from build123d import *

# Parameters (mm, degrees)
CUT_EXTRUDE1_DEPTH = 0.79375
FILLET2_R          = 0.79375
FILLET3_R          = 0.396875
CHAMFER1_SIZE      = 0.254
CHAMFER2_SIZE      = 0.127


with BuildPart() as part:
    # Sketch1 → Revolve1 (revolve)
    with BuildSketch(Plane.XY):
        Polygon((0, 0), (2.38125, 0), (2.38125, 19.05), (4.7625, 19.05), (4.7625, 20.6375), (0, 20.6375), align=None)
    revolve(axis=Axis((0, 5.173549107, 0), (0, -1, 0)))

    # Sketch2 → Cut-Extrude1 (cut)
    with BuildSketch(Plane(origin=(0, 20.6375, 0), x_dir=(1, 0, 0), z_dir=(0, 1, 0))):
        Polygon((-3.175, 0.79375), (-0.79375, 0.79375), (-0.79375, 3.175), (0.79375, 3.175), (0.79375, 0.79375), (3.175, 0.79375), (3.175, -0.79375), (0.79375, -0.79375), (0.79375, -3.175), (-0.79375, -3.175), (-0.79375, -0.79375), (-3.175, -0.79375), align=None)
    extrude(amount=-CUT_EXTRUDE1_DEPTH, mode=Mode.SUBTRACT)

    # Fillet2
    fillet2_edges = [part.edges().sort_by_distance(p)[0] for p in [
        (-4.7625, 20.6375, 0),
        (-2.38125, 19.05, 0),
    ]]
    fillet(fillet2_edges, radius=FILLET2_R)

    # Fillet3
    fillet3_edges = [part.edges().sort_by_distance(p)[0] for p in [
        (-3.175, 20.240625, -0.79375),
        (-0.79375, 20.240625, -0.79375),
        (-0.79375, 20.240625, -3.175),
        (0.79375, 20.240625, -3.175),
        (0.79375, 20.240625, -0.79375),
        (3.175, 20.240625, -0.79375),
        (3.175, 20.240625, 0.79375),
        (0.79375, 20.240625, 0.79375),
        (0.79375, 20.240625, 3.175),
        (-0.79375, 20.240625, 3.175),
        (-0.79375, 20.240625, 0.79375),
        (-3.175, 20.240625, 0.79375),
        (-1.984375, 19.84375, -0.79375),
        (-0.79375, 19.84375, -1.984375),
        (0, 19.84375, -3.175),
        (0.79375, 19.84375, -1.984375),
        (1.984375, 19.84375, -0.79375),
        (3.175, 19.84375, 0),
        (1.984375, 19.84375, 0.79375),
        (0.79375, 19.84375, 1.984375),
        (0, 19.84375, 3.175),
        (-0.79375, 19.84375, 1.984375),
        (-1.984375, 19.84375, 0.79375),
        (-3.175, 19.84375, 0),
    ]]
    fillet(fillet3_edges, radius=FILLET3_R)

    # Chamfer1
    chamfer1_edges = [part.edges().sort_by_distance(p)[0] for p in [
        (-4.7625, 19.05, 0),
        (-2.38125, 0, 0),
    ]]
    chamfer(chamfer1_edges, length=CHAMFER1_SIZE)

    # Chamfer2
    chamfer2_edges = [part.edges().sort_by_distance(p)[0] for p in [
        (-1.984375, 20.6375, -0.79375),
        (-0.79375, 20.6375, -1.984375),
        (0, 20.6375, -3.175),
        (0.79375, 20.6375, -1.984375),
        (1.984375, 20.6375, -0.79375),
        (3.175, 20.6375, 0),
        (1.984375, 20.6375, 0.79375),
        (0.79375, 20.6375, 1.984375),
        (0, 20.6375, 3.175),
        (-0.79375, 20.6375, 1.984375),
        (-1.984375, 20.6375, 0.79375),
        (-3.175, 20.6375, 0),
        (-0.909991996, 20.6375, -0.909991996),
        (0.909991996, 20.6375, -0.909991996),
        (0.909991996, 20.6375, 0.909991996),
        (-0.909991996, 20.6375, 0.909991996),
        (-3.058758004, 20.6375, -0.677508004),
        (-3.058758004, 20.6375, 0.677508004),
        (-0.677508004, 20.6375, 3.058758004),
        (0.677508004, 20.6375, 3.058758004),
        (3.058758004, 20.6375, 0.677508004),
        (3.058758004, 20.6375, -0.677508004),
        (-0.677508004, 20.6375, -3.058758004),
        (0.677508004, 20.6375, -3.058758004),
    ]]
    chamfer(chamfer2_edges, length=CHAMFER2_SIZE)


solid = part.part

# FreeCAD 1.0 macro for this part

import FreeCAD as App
import Part
import Sketcher
from FreeCAD import Vector
Q = App.Units.Quantity


def edges_at(feature, points):
    """Names of the edges that pass closest to the given points."""
    edges = feature.Shape.Edges
    near = lambda p: min(range(len(edges)), key=lambda i: edges[i].distToShape(Part.Vertex(*p))[0])
    return sorted({f"Edge{near(p) + 1}" for p in points})


def add_polygon(sketch, points):
    """Adds a closed chain of lines whose ends are joined by coincident constraints."""
    first, n = sketch.GeometryCount, len(points)
    for a, b in zip(points, points[1:] + points[:1]):
        sketch.addGeometry(Part.LineSegment(App.Vector(*a, 0), App.Vector(*b, 0)), False)
    for i in range(n):
        sketch.addConstraint(Sketcher.Constraint("Coincident", first + i, 2, first + (i + 1) % n, 1))

doc = App.newDocument("Part")
body = doc.addObject("PartDesign::Body", "Body")

# Sketch on XY plane
sketch1 = doc.addObject("Sketcher::SketchObject", "Sketch")
body.addObject(sketch1)
sketch1.AttachmentSupport = (doc.XY_Plane, [""])
sketch1.MapMode = "FlatFace"
add_polygon(sketch1, [(0, 0), (2.38125, 0), (2.38125, 19.05), (4.7625, 19.05), (4.7625, 20.6375), (0, 20.6375)])  # lines 0-5
sketch1.addConstraint(Sketcher.Constraint("Horizontal", 0))
sketch1.addConstraint(Sketcher.Constraint("Vertical", 1))
sketch1.addConstraint(Sketcher.Constraint("Horizontal", 2))
sketch1.addConstraint(Sketcher.Constraint("Vertical", 3))
sketch1.addConstraint(Sketcher.Constraint("Horizontal", 4))
sketch1.addConstraint(Sketcher.Constraint("Vertical", 5))
sketch1.addConstraint(Sketcher.Constraint("Coincident", 5, 2, -1, 1))
sketch1.addConstraint(Sketcher.Constraint("Equal", 0, 2))
sketch1.addConstraint(Sketcher.Constraint("DistanceY", 1, 1, 1, 2, Q("0.75 in")))
sketch1.addConstraint(Sketcher.Constraint("DistanceX", 0, 1, 0, 2, Q("0.09375 in")))
sketch1.addConstraint(Sketcher.Constraint("DistanceY", 3, 1, 3, 2, Q("0.0625 in")))
revolution = doc.addObject("PartDesign::Revolution", "Revolution")
body.addObject(revolution)
revolution.Profile = sketch1
revolution.ReferenceAxis = (sketch1, ["V_Axis"])
revolution.Angle = 360

# Sketch on XZ plane
sketch2 = doc.addObject("Sketcher::SketchObject", "Sketch001")
body.addObject(sketch2)
sketch2.AttachmentSupport = (doc.XZ_Plane, [""])
sketch2.MapMode = "FlatFace"
sketch2.AttachmentOffset = App.Placement(Vector(0, 0, -0.8125 * 25.4), App.Rotation())
add_polygon(sketch2, [(-0.79375, -0.79375), (-3.175, -0.79375), (-3.175, 0.79375), (-0.79375, 0.79375), (-0.79375, 3.175), (0.79375, 3.175), (0.79375, 0.79375), (3.175, 0.79375), (3.175, -0.79375), (0.79375, -0.79375), (0.79375, -3.175), (-0.79375, -3.175)])  # lines 0-11
sketch2.addConstraint(Sketcher.Constraint("Horizontal", 0))
sketch2.addConstraint(Sketcher.Constraint("Vertical", 1))
sketch2.addConstraint(Sketcher.Constraint("Horizontal", 2))
sketch2.addConstraint(Sketcher.Constraint("Vertical", 3))
sketch2.addConstraint(Sketcher.Constraint("Horizontal", 4))
sketch2.addConstraint(Sketcher.Constraint("Vertical", 5))
sketch2.addConstraint(Sketcher.Constraint("Horizontal", 6))
sketch2.addConstraint(Sketcher.Constraint("Vertical", 7))
sketch2.addConstraint(Sketcher.Constraint("Horizontal", 8))
sketch2.addConstraint(Sketcher.Constraint("Vertical", 9))
sketch2.addConstraint(Sketcher.Constraint("Horizontal", 10))
sketch2.addConstraint(Sketcher.Constraint("Vertical", 11))
sketch2.addConstraint(Sketcher.Constraint("Symmetric", 0, 2, 6, 2, -1, 1))
sketch2.addConstraint(Sketcher.Constraint("Symmetric", 2, 2, 8, 2, -1, 1))
sketch2.addConstraint(Sketcher.Constraint("Symmetric", 4, 2, 10, 2, -1, 1))
sketch2.addConstraint(Sketcher.Constraint("Symmetric", 2, 2, 5, 2, -2))
sketch2.addConstraint(Sketcher.Constraint("Equal", 10, 1))
sketch2.addConstraint(Sketcher.Constraint("Equal", 8, 3))
sketch2.addConstraint(Sketcher.Constraint("DistanceX", 0, 2, 0, 1, Q("0.09375 in")))
sketch2.addConstraint(Sketcher.Constraint("DistanceX", 4, 1, 4, 2, Q("0.0625 in")))
pocket1 = doc.addObject("PartDesign::Pocket", "Pocket")
body.addObject(pocket1)
pocket1.Profile = sketch2
pocket1.Length = Q("0.03125 in")
pocket1.Reversed = True
doc.recompute()

fillet = doc.addObject("PartDesign::Fillet", "Fillet")
body.addObject(fillet)
fillet.Base = (pocket1, edges_at(pocket1, [(-4.763, 20.637, 0), (-2.381, 19.05, 0)]))
fillet.Radius = Q("0.03125 in")
doc.recompute()

fillet2 = doc.addObject("PartDesign::Fillet", "Fillet001")
body.addObject(fillet2)
fillet2.Base = (fillet, edges_at(fillet, [
    (-3.175, 20.241, -0.794),
    (-0.794, 20.241, -0.794),
    (-0.794, 20.241, -3.175),
    (0.794, 20.241, -3.175),
    (0.794, 20.241, -0.794),
    (3.175, 20.241, -0.794),
    (3.175, 20.241, 0.794),
    (0.794, 20.241, 0.794),
    (0.794, 20.241, 3.175),
    (-0.794, 20.241, 3.175),
    (-0.794, 20.241, 0.794),
    (-3.175, 20.241, 0.794),
    (-1.984, 19.844, -0.794),
    (-0.794, 19.844, -1.984),
    (0, 19.844, -3.175),
    (0.794, 19.844, -1.984),
    (1.984, 19.844, -0.794),
    (3.175, 19.844, 0),
    (1.984, 19.844, 0.794),
    (0.794, 19.844, 1.984),
    (0, 19.844, 3.175),
    (-0.794, 19.844, 1.984),
    (-1.984, 19.844, 0.794),
    (-3.175, 19.844, 0),
]))
fillet2.Radius = Q("0.015625 in")
doc.recompute()

chamfer = doc.addObject("PartDesign::Chamfer", "Chamfer")
body.addObject(chamfer)
chamfer.Base = (fillet2, edges_at(fillet2, [(-4.763, 19.05, 0), (-2.381, 0, 0)]))
chamfer.Size = Q("0.01 in")
doc.recompute()

chamfer2 = doc.addObject("PartDesign::Chamfer", "Chamfer001")
body.addObject(chamfer2)
chamfer2.Base = (chamfer, edges_at(chamfer, [
    (-1.984, 20.637, -0.794),
    (-0.794, 20.637, -1.984),
    (0, 20.637, -3.175),
    (0.794, 20.637, -1.984),
    (1.984, 20.637, -0.794),
    (3.175, 20.637, 0),
    (1.984, 20.637, 0.794),
    (0.794, 20.637, 1.984),
    (0, 20.637, 3.175),
    (-0.794, 20.637, 1.984),
    (-1.984, 20.637, 0.794),
    (-3.175, 20.637, 0),
    (-0.91, 20.637, -0.91),
    (0.91, 20.637, -0.91),
    (0.91, 20.637, 0.91),
    (-0.91, 20.637, 0.91),
    (-3.059, 20.637, -0.678),
    (-3.059, 20.637, 0.678),
    (-0.678, 20.637, 3.059),
    (0.678, 20.637, 3.059),
    (3.059, 20.637, 0.678),
    (3.059, 20.637, -0.678),
    (-0.678, 20.637, -3.059),
    (0.678, 20.637, -3.059),
]))
chamfer2.Size = Q("0.005 in")

doc.recompute()
